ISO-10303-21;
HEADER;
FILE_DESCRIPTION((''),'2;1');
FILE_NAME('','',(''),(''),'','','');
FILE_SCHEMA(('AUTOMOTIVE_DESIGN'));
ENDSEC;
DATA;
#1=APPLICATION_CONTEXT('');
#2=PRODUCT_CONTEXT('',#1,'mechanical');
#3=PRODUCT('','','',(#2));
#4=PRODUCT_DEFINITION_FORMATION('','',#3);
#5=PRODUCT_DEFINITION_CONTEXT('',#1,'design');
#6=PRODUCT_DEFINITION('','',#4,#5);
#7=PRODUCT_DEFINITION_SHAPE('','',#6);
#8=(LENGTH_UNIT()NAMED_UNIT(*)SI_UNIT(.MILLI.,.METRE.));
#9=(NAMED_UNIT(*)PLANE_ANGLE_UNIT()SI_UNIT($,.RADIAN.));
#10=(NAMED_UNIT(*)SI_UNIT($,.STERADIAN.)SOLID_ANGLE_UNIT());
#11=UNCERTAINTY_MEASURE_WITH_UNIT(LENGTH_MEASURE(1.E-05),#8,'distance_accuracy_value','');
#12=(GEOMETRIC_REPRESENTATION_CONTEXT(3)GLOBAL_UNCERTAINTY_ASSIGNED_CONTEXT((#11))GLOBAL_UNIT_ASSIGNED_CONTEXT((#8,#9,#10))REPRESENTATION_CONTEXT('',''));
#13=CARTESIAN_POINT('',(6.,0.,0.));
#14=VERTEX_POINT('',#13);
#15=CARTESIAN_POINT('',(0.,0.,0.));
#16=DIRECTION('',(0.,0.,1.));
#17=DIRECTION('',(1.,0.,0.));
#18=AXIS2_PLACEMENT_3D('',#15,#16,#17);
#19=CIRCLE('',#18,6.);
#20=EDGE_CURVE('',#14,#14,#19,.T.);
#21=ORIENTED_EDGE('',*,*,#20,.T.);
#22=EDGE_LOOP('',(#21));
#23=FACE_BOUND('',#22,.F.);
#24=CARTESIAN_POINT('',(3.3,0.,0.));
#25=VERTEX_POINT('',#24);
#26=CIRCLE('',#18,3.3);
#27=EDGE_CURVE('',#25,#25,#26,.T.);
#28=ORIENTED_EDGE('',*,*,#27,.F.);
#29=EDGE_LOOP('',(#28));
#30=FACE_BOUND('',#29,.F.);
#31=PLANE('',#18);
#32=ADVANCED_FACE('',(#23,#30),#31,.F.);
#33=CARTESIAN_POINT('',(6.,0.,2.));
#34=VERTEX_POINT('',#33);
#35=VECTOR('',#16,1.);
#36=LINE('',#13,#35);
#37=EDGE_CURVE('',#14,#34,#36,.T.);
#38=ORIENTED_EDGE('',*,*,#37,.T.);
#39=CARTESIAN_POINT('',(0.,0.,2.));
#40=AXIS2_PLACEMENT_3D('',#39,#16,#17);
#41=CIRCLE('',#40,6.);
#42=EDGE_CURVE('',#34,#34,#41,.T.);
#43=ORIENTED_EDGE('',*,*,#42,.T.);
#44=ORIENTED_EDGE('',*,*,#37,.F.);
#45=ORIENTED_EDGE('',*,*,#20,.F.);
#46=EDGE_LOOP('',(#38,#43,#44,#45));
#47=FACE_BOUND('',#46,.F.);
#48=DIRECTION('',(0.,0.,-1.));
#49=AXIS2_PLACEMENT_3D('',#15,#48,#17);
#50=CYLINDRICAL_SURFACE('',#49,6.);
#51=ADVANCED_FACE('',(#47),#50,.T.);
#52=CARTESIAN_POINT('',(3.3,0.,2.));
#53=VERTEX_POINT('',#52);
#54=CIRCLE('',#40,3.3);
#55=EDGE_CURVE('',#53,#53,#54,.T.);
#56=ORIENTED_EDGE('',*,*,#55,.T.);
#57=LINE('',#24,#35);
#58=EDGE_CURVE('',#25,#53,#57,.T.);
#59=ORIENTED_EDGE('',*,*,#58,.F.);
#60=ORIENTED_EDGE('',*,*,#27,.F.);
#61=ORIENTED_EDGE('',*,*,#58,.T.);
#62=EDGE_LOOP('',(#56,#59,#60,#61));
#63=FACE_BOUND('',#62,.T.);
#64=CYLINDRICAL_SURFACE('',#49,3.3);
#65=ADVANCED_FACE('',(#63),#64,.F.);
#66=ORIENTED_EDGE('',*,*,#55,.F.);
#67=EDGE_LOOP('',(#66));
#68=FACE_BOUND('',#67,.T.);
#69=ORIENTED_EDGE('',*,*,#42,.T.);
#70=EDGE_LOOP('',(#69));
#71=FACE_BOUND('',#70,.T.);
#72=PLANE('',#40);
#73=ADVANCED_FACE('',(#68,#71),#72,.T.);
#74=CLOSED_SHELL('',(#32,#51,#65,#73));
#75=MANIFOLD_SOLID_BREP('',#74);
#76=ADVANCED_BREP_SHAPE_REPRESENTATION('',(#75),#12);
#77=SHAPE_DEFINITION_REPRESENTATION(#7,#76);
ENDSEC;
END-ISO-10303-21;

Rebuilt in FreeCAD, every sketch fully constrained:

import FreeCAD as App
import Part
import Sketcher

V = App.Vector

doc = App.newDocument("Part")
body = doc.addObject("PartDesign::Body", "Body")

sketch1 = body.newObject("Sketcher::SketchObject", "Sketch")
sketch1.AttachmentSupport = (doc.getObject("XY_Plane"), [""])
sketch1.MapMode = "FlatFace"
sketch1.addGeometry(Part.Circle(V(0, 0, 0), V(0, 0, 1), 6), False)
sketch1.addGeometry(Part.Circle(V(0, 0, 0), V(0, 0, 1), 3.3), False)
sketch1.addConstraint(Sketcher.Constraint("Coincident", 0, 3, -1, 1))
sketch1.addConstraint(Sketcher.Constraint("Coincident", 1, 3, -1, 1))
sketch1.addConstraint(Sketcher.Constraint("Diameter", 0, 12.0))
sketch1.addConstraint(Sketcher.Constraint("Diameter", 1, 6.6))
pad1 = body.newObject("PartDesign::Pad", "Pad")
pad1.Profile = sketch1
pad1.Length = 2

doc.recompute()
